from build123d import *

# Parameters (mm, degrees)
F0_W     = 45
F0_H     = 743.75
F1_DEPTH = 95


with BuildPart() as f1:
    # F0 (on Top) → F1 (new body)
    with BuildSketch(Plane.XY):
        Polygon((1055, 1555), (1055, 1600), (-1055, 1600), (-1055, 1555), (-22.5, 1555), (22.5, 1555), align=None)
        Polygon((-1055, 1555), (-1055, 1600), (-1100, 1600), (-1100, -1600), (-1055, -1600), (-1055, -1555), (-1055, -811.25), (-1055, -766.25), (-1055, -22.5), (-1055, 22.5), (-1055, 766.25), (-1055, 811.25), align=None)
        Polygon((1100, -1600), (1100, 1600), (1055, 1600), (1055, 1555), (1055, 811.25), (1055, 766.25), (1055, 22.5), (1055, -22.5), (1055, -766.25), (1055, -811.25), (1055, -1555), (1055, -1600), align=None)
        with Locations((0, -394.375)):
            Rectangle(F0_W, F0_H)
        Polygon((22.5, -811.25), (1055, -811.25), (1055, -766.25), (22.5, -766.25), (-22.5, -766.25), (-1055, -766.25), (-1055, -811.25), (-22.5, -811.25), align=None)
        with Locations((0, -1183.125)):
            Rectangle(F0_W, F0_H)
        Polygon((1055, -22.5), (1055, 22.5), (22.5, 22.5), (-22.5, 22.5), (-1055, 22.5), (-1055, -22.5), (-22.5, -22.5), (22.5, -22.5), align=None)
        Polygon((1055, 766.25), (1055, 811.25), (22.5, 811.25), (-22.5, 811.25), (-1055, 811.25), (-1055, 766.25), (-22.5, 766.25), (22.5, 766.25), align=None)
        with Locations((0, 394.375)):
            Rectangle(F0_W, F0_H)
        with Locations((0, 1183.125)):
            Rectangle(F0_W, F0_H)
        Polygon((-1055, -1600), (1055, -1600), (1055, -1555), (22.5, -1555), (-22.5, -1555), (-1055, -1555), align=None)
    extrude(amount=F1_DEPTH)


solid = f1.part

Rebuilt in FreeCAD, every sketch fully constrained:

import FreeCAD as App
import Part
import Sketcher

V = App.Vector
Q = App.Units.Quantity

doc = App.newDocument("Part")
body = doc.addObject("PartDesign::Body", "Body")

# Sketch on XY plane
sketch1 = body.newObject("Sketcher::SketchObject", "Sketch")
sketch1.AttachmentSupport = (doc.getObject("XY_Plane"), [""])
sketch1.MapMode = "FlatFace"
sketch1.addGeometry([
    Part.LineSegment(V(-1100, 1600, 0), V(-1100, -1600, 0)),  # 0
    Part.LineSegment(V(-1100, -1600, 0), V(1100, -1600, 0)),  # 1
    Part.LineSegment(V(1100, -1600, 0), V(1100, 1600, 0)),  # 2
    Part.LineSegment(V(1100, 1600, 0), V(-1100, 1600, 0)),  # 3
    Part.LineSegment(V(-1055, -1555, 0), V(-1055, -811.25, 0)),  # 4
    Part.LineSegment(V(-1055, -811.25, 0), V(-22.5, -811.25, 0)),  # 5
    Part.LineSegment(V(-22.5, -811.25, 0), V(-22.5, -1555, 0)),  # 6
    Part.LineSegment(V(-22.5, -1555, 0), V(-1055, -1555, 0)),  # 7
    Part.LineSegment(V(22.5, -1555, 0), V(22.5, -811.25, 0)),  # 8
    Part.LineSegment(V(22.5, -811.25, 0), V(1055, -811.25, 0)),  # 9
    Part.LineSegment(V(1055, -811.25, 0), V(1055, -1555, 0)),  # 10
    Part.LineSegment(V(1055, -1555, 0), V(22.5, -1555, 0)),  # 11
    Part.LineSegment(V(-1055, -766.25, 0), V(-1055, -22.5, 0)),  # 12
    Part.LineSegment(V(-1055, -22.5, 0), V(-22.5, -22.5, 0)),  # 13
    Part.LineSegment(V(-22.5, -22.5, 0), V(-22.5, -766.25, 0)),  # 14
    Part.LineSegment(V(-22.5, -766.25, 0), V(-1055, -766.25, 0)),  # 15
    Part.LineSegment(V(-1055, 22.5, 0), V(-1055, 766.25, 0)),  # 16
    Part.LineSegment(V(-1055, 766.25, 0), V(-22.5, 766.25, 0)),  # 17
    Part.LineSegment(V(-22.5, 766.25, 0), V(-22.5, 22.5, 0)),  # 18
    Part.LineSegment(V(-22.5, 22.5, 0), V(-1055, 22.5, 0)),  # 19
    Part.LineSegment(V(22.5, 766.25, 0), V(1055, 766.25, 0)),  # 20
    Part.LineSegment(V(1055, 766.25, 0), V(1055, 22.5, 0)),  # 21
    Part.LineSegment(V(1055, 22.5, 0), V(22.5, 22.5, 0)),  # 22
    Part.LineSegment(V(22.5, 22.5, 0), V(22.5, 766.25, 0)),  # 23
    Part.LineSegment(V(-1055, 811.25, 0), V(-1055, 1555, 0)),  # 24
    Part.LineSegment(V(-1055, 1555, 0), V(-22.5, 1555, 0)),  # 25
    Part.LineSegment(V(-22.5, 1555, 0), V(-22.5, 811.25, 0)),  # 26
    Part.LineSegment(V(-22.5, 811.25, 0), V(-1055, 811.25, 0)),  # 27
    Part.LineSegment(V(22.5, 1555, 0), V(1055, 1555, 0)),  # 28
    Part.LineSegment(V(1055, 1555, 0), V(1055, 811.25, 0)),  # 29
    Part.LineSegment(V(1055, 811.25, 0), V(22.5, 811.25, 0)),  # 30
    Part.LineSegment(V(22.5, 811.25, 0), V(22.5, 1555, 0)),  # 31
    Part.LineSegment(V(1055, -22.5, 0), V(1055, -766.25, 0)),  # 32
    Part.LineSegment(V(1055, -766.25, 0), V(22.5, -766.25, 0)),  # 33
    Part.LineSegment(V(22.5, -766.25, 0), V(22.5, -22.5, 0)),  # 34
    Part.LineSegment(V(22.5, -22.5, 0), V(1055, -22.5, 0)),  # 35
], False)
sketch1.addConstraint([
    Sketcher.Constraint("Coincident", 0, 2, 1, 1),
    Sketcher.Constraint("Coincident", 1, 2, 2, 1),
    Sketcher.Constraint("Coincident", 2, 2, 3, 1),
    Sketcher.Constraint("Coincident", 3, 2, 0, 1),
    Sketcher.Constraint("Coincident", 4, 2, 5, 1),
    Sketcher.Constraint("Coincident", 5, 2, 6, 1),
    Sketcher.Constraint("Coincident", 6, 2, 7, 1),
    Sketcher.Constraint("Coincident", 7, 2, 4, 1),
    Sketcher.Constraint("Coincident", 8, 2, 9, 1),
    Sketcher.Constraint("Coincident", 9, 2, 10, 1),
    Sketcher.Constraint("Coincident", 10, 2, 11, 1),
    Sketcher.Constraint("Coincident", 11, 2, 8, 1),
    Sketcher.Constraint("Coincident", 12, 2, 13, 1),
    Sketcher.Constraint("Coincident", 13, 2, 14, 1),
    Sketcher.Constraint("Coincident", 14, 2, 15, 1),
    Sketcher.Constraint("Coincident", 15, 2, 12, 1),
    Sketcher.Constraint("Coincident", 16, 2, 17, 1),
    Sketcher.Constraint("Coincident", 17, 2, 18, 1),
    Sketcher.Constraint("Coincident", 18, 2, 19, 1),
    Sketcher.Constraint("Coincident", 19, 2, 16, 1),
    Sketcher.Constraint("Coincident", 20, 2, 21, 1),
    Sketcher.Constraint("Coincident", 21, 2, 22, 1),
    Sketcher.Constraint("Coincident", 22, 2, 23, 1),
    Sketcher.Constraint("Coincident", 23, 2, 20, 1),
    Sketcher.Constraint("Coincident", 24, 2, 25, 1),
    Sketcher.Constraint("Coincident", 25, 2, 26, 1),
    Sketcher.Constraint("Coincident", 26, 2, 27, 1),
    Sketcher.Constraint("Coincident", 27, 2, 24, 1),
    Sketcher.Constraint("Coincident", 28, 2, 29, 1),
    Sketcher.Constraint("Coincident", 29, 2, 30, 1),
    Sketcher.Constraint("Coincident", 30, 2, 31, 1),
    Sketcher.Constraint("Coincident", 31, 2, 28, 1),
    Sketcher.Constraint("Coincident", 32, 2, 33, 1),
    Sketcher.Constraint("Coincident", 33, 2, 34, 1),
    Sketcher.Constraint("Coincident", 34, 2, 35, 1),
    Sketcher.Constraint("Coincident", 35, 2, 32, 1),
    Sketcher.Constraint("Vertical", 0),
    Sketcher.Constraint("Horizontal", 1),
    Sketcher.Constraint("Vertical", 2),
    Sketcher.Constraint("Horizontal", 3),
    Sketcher.Constraint("Vertical", 4),
    Sketcher.Constraint("Horizontal", 5),
    Sketcher.Constraint("Vertical", 6),
    Sketcher.Constraint("Horizontal", 7),
    Sketcher.Constraint("Vertical", 8),
    Sketcher.Constraint("Horizontal", 9),
    Sketcher.Constraint("Vertical", 10),
    Sketcher.Constraint("Horizontal", 11),
    Sketcher.Constraint("Vertical", 12),
    Sketcher.Constraint("Horizontal", 13),
    Sketcher.Constraint("Vertical", 14),
    Sketcher.Constraint("Horizontal", 15),
    Sketcher.Constraint("Vertical", 16),
    Sketcher.Constraint("Horizontal", 17),
    Sketcher.Constraint("Vertical", 18),
    Sketcher.Constraint("Horizontal", 19),
    Sketcher.Constraint("Horizontal", 20),
    Sketcher.Constraint("Vertical", 21),
    Sketcher.Constraint("Horizontal", 22),
    Sketcher.Constraint("Vertical", 23),
    Sketcher.Constraint("Vertical", 24),
    Sketcher.Constraint("Horizontal", 25),
    Sketcher.Constraint("Vertical", 26),
    Sketcher.Constraint("Horizontal", 27),
    Sketcher.Constraint("Horizontal", 28),
    Sketcher.Constraint("Vertical", 29),
    Sketcher.Constraint("Horizontal", 30),
    Sketcher.Constraint("Vertical", 31),
    Sketcher.Constraint("Vertical", 32),
    Sketcher.Constraint("Horizontal", 33),
    Sketcher.Constraint("Vertical", 34),
    Sketcher.Constraint("Horizontal", 35),
    Sketcher.Constraint("Symmetric", 0, 2, 2, 2, -1, 1),
    Sketcher.Constraint("Symmetric", 15, 2, 20, 2, -1, 1),
    Sketcher.Constraint("Symmetric", 13, 2, 22, 2, -1, 1),
    Sketcher.Constraint("Symmetric", 10, 2, 24, 2, -1, 1),
    Sketcher.Constraint("Symmetric", 8, 2, 26, 2, -1, 1),
    Sketcher.Constraint("Symmetric", 7, 2, 28, 2, -1, 1),
    Sketcher.Constraint("Symmetric", 5, 2, 30, 2, -1, 1),
    Sketcher.Constraint("Symmetric", 16, 2, 32, 2, -1, 1),
    Sketcher.Constraint("Symmetric", 18, 2, 34, 2, -1, 1),
    Sketcher.Constraint("Symmetric", 5, 2, 8, 2, -2),
    Sketcher.Constraint("Symmetric", 7, 2, 10, 2, -2),
    Sketcher.Constraint("Symmetric", 16, 2, 20, 2, -2),
    Sketcher.Constraint("Symmetric", 18, 2, 22, 2, -2),
    Sketcher.Constraint("Vertical", 7, 2, 12, 2),
    Sketcher.Constraint("Vertical", 6, 2, 13, 2),
    Sketcher.Constraint("Equal", 10, 12),
    Sketcher.Constraint("DistanceX", 1, 1, 1, 2, Q("2200 mm")),
    Sketcher.Constraint("DistanceY", 0, 2, 0, 1, Q("3200 mm")),
    Sketcher.Constraint("DistanceX", 5, 1, 5, 2, Q("1032.5 mm")),
    Sketcher.Constraint("DistanceX", 4, 2, -1, 1, Q("1055 mm")),
    Sketcher.Constraint("DistanceY", 6, 2, -1, 1, Q("1555 mm")),
    Sketcher.Constraint("DistanceY", 5, 2, 14, 2, Q("45 mm")),
    Sketcher.Constraint("DistanceY", 13, 2, 18, 2, Q("45 mm")),
])
pad1 = body.newObject("PartDesign::Pad", "Pad")
pad1.Profile = sketch1
pad1.Length = 95

doc.recompute()
